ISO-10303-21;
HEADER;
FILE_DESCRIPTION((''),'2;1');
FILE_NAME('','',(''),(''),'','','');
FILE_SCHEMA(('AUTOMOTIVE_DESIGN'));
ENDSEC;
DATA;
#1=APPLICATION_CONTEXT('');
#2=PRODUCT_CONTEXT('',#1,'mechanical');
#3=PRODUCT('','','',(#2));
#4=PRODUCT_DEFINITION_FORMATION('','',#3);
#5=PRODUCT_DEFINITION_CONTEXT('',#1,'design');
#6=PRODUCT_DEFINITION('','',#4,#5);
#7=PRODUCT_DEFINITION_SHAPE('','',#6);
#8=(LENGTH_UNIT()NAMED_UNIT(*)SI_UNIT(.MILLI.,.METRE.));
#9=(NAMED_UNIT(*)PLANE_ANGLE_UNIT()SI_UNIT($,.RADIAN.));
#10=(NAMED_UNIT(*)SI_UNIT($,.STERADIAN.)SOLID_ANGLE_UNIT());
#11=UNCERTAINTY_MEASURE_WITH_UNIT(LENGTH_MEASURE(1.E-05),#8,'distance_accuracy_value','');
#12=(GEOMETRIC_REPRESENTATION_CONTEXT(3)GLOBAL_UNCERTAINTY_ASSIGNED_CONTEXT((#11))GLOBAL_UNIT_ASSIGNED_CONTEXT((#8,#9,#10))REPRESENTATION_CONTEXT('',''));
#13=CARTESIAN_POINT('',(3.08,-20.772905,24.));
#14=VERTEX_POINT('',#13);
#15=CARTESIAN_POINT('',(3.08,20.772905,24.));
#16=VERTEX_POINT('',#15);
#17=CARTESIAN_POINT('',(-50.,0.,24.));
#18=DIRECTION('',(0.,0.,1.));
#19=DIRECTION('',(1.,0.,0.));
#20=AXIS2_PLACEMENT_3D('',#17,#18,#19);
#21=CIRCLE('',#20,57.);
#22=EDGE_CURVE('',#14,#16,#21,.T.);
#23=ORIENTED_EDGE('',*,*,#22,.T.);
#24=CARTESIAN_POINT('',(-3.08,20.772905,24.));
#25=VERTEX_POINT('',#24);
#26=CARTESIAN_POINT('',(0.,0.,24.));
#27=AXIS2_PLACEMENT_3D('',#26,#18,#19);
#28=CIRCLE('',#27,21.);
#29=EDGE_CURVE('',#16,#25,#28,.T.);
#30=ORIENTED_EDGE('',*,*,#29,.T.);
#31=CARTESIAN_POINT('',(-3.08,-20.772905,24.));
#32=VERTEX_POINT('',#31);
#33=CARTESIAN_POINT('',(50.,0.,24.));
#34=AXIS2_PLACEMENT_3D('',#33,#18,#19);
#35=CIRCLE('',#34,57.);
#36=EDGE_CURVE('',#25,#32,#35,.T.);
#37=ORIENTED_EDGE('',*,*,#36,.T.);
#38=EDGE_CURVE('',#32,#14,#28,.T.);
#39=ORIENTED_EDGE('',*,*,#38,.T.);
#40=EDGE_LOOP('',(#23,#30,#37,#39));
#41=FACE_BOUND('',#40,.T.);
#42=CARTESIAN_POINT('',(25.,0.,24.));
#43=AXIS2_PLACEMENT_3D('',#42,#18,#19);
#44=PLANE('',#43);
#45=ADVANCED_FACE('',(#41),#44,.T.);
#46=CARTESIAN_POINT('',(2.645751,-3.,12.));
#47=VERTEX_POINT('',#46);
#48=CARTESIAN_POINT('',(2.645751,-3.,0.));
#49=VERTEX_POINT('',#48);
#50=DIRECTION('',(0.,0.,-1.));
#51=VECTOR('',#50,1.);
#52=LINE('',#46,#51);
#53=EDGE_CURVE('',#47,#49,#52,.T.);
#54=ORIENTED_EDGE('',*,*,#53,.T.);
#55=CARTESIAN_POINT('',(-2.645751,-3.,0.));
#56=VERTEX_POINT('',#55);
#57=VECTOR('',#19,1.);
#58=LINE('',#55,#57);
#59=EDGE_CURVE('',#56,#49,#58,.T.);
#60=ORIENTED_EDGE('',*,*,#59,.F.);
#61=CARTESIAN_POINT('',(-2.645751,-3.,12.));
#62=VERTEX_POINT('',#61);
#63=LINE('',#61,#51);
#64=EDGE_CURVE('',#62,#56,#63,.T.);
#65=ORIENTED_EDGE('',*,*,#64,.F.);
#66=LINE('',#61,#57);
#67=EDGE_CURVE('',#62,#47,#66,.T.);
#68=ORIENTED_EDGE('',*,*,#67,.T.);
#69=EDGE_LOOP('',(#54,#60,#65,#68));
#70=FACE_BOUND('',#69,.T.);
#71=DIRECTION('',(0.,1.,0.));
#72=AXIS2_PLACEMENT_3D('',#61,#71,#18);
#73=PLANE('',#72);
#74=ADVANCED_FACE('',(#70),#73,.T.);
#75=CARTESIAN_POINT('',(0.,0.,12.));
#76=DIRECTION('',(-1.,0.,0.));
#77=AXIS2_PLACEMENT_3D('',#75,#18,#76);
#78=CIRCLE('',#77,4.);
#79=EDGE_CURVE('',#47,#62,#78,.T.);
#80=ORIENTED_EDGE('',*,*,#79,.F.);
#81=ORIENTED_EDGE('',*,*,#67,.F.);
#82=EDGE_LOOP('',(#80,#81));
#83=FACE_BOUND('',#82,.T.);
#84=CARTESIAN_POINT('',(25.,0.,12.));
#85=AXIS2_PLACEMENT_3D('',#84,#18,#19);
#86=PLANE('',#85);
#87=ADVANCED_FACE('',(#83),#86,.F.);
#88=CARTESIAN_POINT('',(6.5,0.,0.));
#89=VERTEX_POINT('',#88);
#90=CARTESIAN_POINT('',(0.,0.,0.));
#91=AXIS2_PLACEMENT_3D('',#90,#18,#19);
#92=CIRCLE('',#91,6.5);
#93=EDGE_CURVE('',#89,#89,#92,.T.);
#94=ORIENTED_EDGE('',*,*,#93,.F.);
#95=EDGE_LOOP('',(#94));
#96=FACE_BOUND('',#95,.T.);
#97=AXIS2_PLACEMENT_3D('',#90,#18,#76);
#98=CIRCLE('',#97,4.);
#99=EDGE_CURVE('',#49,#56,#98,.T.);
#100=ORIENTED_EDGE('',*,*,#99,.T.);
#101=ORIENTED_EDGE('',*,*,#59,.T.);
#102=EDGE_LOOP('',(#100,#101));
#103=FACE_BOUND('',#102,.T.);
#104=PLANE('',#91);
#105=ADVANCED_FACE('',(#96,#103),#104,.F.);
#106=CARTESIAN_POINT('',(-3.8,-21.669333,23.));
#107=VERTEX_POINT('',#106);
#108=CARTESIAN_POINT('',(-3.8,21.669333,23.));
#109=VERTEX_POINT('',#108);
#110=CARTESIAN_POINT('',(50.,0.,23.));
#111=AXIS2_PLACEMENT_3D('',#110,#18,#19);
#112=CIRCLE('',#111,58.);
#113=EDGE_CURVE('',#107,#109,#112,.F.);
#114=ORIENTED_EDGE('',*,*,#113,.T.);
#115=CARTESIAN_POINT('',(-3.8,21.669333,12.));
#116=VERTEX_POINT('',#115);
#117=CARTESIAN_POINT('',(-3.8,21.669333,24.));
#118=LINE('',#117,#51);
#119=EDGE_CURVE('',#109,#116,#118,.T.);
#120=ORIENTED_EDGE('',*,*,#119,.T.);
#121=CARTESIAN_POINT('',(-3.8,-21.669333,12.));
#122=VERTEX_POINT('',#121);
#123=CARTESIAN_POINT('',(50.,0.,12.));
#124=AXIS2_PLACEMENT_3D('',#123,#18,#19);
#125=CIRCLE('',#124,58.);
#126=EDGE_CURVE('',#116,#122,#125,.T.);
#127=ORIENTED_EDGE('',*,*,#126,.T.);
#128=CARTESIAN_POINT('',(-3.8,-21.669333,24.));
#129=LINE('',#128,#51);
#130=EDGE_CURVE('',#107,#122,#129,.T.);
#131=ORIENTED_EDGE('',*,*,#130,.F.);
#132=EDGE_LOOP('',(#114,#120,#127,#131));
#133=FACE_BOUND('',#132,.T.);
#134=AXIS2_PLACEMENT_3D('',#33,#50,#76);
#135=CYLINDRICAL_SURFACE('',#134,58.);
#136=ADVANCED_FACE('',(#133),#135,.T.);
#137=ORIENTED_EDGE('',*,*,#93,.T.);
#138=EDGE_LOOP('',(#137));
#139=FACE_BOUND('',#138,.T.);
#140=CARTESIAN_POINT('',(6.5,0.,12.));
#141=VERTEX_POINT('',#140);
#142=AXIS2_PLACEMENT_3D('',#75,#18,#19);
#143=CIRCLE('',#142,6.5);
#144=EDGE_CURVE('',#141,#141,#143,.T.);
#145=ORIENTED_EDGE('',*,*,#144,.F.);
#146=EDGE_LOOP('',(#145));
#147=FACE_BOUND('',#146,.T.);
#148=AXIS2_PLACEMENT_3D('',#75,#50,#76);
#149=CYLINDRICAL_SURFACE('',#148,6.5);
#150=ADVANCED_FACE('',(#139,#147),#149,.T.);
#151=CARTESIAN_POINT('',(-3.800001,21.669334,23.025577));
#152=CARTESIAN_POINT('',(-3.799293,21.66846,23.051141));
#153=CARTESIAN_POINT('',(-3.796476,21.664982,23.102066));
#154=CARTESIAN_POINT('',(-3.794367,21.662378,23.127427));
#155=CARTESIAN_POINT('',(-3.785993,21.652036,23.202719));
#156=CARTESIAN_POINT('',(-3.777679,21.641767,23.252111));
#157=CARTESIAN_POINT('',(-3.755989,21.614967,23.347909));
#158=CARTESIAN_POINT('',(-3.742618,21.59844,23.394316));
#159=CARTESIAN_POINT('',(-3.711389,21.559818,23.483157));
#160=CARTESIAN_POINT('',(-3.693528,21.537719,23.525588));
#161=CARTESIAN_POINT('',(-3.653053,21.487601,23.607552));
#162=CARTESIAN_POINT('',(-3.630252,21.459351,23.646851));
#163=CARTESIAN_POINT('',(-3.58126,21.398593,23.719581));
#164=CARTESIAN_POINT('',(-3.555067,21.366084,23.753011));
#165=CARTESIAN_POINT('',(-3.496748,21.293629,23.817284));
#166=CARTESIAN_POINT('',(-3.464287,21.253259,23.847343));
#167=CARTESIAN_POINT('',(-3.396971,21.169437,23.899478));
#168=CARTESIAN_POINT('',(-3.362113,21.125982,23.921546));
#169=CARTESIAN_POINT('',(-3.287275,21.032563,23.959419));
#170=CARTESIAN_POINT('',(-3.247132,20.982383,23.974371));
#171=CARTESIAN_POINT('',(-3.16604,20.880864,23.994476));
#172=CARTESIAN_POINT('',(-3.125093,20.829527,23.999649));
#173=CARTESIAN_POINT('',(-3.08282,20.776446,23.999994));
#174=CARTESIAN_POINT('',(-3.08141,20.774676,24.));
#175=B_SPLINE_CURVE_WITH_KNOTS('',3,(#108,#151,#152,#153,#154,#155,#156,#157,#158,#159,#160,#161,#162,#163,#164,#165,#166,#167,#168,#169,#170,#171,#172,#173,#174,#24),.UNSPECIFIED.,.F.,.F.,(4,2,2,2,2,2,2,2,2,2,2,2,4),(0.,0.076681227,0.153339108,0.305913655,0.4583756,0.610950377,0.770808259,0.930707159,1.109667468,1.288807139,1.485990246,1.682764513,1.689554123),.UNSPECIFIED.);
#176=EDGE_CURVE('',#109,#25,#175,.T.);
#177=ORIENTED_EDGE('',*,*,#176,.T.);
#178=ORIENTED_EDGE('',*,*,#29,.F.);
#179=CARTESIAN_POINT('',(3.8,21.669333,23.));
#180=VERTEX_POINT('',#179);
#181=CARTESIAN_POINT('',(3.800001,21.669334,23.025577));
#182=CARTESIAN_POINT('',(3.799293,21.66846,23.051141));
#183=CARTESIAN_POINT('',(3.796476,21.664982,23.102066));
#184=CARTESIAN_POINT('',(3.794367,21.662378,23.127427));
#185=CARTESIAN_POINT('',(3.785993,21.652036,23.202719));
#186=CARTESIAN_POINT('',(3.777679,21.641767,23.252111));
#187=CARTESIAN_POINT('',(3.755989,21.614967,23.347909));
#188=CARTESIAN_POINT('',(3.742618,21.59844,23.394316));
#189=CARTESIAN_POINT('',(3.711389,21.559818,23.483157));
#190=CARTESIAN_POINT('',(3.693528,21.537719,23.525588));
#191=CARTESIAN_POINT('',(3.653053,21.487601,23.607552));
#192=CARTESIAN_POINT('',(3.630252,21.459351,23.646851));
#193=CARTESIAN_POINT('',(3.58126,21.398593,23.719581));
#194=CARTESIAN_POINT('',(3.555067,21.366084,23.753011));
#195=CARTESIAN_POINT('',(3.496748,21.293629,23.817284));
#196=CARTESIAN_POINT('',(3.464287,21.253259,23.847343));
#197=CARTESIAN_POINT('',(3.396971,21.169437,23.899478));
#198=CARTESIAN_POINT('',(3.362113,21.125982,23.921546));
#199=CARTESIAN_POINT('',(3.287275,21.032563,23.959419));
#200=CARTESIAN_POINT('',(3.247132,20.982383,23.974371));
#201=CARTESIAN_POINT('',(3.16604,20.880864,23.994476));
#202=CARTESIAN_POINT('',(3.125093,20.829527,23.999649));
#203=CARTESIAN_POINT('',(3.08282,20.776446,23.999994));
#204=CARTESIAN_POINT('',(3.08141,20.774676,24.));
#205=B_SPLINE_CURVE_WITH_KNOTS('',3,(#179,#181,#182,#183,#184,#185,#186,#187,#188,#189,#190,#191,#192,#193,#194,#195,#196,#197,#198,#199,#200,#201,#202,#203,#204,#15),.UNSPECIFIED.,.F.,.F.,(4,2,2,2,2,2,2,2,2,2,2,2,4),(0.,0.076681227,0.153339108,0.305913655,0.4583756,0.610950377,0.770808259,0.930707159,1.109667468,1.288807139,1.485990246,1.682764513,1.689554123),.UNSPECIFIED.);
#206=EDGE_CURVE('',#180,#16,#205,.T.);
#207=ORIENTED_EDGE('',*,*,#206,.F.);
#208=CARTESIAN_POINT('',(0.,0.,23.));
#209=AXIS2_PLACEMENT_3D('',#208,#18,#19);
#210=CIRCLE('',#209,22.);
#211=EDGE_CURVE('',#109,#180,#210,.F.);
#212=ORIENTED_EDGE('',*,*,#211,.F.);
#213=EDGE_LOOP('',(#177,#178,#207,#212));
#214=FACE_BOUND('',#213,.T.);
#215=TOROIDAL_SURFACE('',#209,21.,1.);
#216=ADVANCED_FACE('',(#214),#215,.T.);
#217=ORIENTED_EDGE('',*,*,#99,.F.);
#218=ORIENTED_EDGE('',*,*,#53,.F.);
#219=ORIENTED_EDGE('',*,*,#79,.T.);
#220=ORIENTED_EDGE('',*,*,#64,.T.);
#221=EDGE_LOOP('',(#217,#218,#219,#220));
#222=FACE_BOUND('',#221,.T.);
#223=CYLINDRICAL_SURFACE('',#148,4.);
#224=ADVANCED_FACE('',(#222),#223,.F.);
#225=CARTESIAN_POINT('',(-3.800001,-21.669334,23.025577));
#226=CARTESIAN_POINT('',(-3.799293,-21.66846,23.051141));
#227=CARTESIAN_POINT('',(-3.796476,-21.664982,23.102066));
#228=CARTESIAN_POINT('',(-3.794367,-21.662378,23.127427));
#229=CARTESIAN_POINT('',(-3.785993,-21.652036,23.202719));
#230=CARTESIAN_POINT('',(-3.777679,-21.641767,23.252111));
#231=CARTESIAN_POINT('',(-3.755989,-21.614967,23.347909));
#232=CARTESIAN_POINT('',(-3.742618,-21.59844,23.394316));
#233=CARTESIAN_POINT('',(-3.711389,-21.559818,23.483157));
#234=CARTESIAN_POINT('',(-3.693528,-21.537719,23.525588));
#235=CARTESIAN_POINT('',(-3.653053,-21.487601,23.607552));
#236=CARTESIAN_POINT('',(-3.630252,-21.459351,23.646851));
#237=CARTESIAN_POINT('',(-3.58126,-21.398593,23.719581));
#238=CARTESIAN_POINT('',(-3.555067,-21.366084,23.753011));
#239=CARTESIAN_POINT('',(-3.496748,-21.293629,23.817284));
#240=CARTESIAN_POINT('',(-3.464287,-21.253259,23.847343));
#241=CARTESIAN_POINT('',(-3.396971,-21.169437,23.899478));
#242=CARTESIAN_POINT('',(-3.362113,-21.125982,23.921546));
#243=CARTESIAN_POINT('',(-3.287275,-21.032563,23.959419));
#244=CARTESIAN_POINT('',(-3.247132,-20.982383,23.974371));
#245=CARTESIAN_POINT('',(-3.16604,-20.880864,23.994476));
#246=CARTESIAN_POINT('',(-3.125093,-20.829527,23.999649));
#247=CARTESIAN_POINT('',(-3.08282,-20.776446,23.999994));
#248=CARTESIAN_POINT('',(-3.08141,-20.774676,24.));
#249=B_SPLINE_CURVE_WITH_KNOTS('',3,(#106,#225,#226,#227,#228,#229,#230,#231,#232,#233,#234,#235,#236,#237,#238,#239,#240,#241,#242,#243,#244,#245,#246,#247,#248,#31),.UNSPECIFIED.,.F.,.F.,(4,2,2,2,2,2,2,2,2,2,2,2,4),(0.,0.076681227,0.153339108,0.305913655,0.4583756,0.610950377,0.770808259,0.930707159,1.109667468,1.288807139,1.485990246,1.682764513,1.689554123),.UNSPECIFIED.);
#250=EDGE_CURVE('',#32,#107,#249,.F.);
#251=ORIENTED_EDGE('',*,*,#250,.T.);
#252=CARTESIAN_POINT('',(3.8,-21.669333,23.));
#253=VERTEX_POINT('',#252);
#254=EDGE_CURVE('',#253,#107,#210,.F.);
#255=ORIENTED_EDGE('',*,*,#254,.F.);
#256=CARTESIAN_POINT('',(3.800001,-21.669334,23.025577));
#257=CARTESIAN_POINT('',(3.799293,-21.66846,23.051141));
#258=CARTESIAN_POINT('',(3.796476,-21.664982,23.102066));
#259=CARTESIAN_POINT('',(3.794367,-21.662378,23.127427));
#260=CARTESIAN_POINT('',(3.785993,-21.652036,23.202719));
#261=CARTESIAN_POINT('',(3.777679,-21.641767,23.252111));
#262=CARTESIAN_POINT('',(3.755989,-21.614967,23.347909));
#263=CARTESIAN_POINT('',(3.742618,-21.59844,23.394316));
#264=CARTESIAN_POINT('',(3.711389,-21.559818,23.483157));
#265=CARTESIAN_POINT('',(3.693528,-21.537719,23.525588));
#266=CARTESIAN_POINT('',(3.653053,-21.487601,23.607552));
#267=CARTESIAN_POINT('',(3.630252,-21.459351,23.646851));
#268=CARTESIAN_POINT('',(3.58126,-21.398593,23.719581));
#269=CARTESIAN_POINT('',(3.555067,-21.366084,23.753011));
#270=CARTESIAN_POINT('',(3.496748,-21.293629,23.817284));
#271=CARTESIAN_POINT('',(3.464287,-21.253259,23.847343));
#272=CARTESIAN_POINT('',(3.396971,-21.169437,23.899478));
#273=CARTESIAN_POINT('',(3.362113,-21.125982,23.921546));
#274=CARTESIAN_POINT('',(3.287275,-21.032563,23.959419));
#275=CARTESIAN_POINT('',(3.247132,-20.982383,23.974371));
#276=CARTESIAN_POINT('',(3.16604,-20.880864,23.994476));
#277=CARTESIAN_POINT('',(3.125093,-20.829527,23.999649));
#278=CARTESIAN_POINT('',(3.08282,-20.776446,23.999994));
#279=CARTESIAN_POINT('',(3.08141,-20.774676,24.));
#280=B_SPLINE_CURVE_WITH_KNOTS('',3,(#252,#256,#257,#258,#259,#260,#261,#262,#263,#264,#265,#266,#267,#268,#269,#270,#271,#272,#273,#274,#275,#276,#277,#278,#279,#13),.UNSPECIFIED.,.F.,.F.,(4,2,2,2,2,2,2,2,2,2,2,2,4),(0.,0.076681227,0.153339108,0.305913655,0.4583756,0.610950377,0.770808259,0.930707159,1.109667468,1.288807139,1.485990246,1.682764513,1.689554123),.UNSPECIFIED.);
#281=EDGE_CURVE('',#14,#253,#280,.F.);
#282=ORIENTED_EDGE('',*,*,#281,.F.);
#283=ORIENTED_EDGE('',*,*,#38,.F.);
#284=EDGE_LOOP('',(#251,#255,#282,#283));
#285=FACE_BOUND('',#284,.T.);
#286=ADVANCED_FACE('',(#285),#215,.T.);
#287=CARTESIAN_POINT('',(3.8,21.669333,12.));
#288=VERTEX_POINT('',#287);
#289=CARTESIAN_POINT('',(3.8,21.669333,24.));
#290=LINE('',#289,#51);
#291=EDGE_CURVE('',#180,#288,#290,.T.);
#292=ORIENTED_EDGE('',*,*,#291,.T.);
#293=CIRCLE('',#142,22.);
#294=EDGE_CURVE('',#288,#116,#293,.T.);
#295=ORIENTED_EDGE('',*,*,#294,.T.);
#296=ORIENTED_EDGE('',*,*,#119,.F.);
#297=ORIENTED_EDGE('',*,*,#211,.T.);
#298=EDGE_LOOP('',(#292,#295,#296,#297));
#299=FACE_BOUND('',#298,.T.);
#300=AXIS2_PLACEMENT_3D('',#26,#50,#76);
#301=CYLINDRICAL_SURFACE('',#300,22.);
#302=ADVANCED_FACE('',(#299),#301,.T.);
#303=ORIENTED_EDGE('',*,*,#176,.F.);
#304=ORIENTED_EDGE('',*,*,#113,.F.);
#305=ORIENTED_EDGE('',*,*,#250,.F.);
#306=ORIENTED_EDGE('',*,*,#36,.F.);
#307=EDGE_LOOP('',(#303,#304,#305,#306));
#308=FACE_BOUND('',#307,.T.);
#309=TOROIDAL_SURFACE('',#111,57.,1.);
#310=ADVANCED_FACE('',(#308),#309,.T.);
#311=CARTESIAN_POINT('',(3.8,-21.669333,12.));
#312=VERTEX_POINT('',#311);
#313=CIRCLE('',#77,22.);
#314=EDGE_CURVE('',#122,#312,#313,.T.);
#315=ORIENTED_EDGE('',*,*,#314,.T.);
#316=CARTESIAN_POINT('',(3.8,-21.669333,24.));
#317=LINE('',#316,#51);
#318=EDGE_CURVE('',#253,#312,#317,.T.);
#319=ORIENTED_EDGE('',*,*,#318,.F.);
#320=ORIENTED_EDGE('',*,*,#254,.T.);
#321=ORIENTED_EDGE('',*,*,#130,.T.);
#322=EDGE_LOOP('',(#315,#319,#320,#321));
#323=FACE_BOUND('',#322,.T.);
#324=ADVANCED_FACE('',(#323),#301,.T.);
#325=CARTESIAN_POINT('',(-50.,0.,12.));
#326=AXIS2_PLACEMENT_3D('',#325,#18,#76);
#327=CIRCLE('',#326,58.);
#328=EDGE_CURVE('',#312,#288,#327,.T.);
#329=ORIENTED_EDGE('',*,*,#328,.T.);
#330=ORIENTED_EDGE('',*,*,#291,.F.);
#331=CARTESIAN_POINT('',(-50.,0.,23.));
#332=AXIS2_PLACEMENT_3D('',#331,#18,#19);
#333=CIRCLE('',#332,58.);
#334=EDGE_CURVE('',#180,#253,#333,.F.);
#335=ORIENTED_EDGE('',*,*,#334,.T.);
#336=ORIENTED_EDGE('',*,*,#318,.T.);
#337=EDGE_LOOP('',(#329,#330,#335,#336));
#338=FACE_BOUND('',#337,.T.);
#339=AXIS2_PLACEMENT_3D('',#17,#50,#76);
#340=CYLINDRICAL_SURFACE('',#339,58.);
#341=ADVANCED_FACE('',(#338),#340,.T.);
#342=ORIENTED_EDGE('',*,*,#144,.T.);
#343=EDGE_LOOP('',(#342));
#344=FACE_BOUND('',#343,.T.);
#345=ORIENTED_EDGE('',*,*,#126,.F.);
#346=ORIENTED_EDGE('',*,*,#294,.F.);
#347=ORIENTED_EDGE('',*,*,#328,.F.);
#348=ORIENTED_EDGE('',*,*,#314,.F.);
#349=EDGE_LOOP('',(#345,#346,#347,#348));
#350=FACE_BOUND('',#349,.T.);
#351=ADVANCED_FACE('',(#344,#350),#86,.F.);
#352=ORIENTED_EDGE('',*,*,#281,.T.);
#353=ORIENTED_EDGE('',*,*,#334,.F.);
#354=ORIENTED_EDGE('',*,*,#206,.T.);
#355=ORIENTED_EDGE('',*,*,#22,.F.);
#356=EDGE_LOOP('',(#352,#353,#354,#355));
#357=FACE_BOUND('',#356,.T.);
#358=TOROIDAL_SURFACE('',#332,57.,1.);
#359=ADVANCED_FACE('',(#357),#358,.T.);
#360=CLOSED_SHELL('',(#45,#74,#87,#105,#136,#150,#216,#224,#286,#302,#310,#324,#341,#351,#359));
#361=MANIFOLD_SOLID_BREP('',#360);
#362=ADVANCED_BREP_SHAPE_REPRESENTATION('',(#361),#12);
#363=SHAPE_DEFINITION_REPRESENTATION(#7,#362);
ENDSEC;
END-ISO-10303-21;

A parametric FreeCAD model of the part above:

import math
import FreeCAD as App
import Part
import Sketcher
from FreeCAD import Vector


def edges_at(feature, points):
    """Names of the edges that pass closest to the given points."""
    edges = feature.Shape.Edges
    near = lambda p: min(range(len(edges)), key=lambda i: edges[i].distToShape(Part.Vertex(*p))[0])
    return sorted({f"Edge{near(p) + 1}" for p in points})

doc = App.newDocument("Part")
body = doc.addObject("PartDesign::Body", "Body")

sketch1 = doc.addObject("Sketcher::SketchObject", "Sketch")
body.addObject(sketch1)
sketch1.AttachmentSupport = (doc.XY_Plane, [""])
sketch1.MapMode = "FlatFace"
sketch1.addGeometry([
    Part.Circle(Vector(0, 0, 0), Vector(0, 0, 1), 6.5),
    Part.LineSegment(Vector(2.6, -3, 0), Vector(-2.6, -3, 0)),
    Part.ArcOfCircle(Part.Circle(Vector(0, 0, 0), Vector(0, 0, 1), 4), math.radians(-49), math.radians(229)),
], False)
sketch1.addConstraint([
    Sketcher.Constraint("Coincident", 1, 1, 2, 1),
    Sketcher.Constraint("Coincident", 2, 2, 1, 2),
    Sketcher.Constraint("Horizontal", 1),
    Sketcher.Constraint("Coincident", 0, 3, -1, 1),
    Sketcher.Constraint("Coincident", 2, 3, -1, 1),
    Sketcher.Constraint("Diameter", 0, 13.0),
    Sketcher.Constraint("Radius", 2, 4.0),
    Sketcher.Constraint("DistanceY", 1, 1, -1, 1, 3.0),
])
pad1 = doc.addObject("PartDesign::Pad", "Pad")
body.addObject(pad1)
pad1.Profile = sketch1
pad1.Length = 12

sketch2 = doc.addObject("Sketcher::SketchObject", "Sketch001")
body.addObject(sketch2)
sketch2.AttachmentSupport = (doc.XY_Plane, [""])
sketch2.MapMode = "FlatFace"
sketch2.AttachmentOffset = App.Placement(Vector(0, 0, 12), App.Rotation())
sketch2.addGeometry([
    Part.ArcOfCircle(Part.Circle(Vector(-50, 0, 0), Vector(0, 0, 1), 58), math.radians(-22), math.radians(22)),
    Part.ArcOfCircle(Part.Circle(Vector(0, 0, 0), Vector(0, 0, 1), 22), math.radians(80.05), math.radians(99.95)),
    Part.ArcOfCircle(Part.Circle(Vector(50, 0, 0), Vector(0, 0, 1), 58), math.radians(158), math.radians(202)),
    Part.ArcOfCircle(Part.Circle(Vector(0, 0, 0), Vector(0, 0, 1), 22), math.radians(-99.95), math.radians(-80.05)),
], False)
sketch2.addConstraint([
    Sketcher.Constraint("Coincident", 0, 2, 1, 1),
    Sketcher.Constraint("Coincident", 1, 2, 2, 1),
    Sketcher.Constraint("Coincident", 2, 2, 3, 1),
    Sketcher.Constraint("Coincident", 3, 2, 0, 1),
    Sketcher.Constraint("Coincident", 1, 3, -1, 1),
    Sketcher.Constraint("Coincident", 3, 3, -1, 1),
    Sketcher.Constraint("Equal", 0, 2),
    Sketcher.Constraint("Equal", 1, 3),
    Sketcher.Constraint("Symmetric", 0, 3, 2, 3, -1, 1),
    Sketcher.Constraint("PointOnObject", 0, 3, -1),
    Sketcher.Constraint("Radius", 0, 58.0),
    Sketcher.Constraint("Radius", 1, 22.0),
    Sketcher.Constraint("DistanceX", 0, 3, -1, 1, 50.0),
])
pad2 = doc.addObject("PartDesign::Pad", "Pad001")
body.addObject(pad2)
pad2.Profile = sketch2
pad2.Length = 12
doc.recompute()

fillet = doc.addObject("PartDesign::Fillet", "Fillet")
body.addObject(fillet)
fillet.Base = (pad2, edges_at(pad2, [
    (0, 22, 24),
    (-8, 0, 24),
    (0, -22, 24),
    (8, 0, 24),
]))
fillet.Radius = 1

doc.recompute()
